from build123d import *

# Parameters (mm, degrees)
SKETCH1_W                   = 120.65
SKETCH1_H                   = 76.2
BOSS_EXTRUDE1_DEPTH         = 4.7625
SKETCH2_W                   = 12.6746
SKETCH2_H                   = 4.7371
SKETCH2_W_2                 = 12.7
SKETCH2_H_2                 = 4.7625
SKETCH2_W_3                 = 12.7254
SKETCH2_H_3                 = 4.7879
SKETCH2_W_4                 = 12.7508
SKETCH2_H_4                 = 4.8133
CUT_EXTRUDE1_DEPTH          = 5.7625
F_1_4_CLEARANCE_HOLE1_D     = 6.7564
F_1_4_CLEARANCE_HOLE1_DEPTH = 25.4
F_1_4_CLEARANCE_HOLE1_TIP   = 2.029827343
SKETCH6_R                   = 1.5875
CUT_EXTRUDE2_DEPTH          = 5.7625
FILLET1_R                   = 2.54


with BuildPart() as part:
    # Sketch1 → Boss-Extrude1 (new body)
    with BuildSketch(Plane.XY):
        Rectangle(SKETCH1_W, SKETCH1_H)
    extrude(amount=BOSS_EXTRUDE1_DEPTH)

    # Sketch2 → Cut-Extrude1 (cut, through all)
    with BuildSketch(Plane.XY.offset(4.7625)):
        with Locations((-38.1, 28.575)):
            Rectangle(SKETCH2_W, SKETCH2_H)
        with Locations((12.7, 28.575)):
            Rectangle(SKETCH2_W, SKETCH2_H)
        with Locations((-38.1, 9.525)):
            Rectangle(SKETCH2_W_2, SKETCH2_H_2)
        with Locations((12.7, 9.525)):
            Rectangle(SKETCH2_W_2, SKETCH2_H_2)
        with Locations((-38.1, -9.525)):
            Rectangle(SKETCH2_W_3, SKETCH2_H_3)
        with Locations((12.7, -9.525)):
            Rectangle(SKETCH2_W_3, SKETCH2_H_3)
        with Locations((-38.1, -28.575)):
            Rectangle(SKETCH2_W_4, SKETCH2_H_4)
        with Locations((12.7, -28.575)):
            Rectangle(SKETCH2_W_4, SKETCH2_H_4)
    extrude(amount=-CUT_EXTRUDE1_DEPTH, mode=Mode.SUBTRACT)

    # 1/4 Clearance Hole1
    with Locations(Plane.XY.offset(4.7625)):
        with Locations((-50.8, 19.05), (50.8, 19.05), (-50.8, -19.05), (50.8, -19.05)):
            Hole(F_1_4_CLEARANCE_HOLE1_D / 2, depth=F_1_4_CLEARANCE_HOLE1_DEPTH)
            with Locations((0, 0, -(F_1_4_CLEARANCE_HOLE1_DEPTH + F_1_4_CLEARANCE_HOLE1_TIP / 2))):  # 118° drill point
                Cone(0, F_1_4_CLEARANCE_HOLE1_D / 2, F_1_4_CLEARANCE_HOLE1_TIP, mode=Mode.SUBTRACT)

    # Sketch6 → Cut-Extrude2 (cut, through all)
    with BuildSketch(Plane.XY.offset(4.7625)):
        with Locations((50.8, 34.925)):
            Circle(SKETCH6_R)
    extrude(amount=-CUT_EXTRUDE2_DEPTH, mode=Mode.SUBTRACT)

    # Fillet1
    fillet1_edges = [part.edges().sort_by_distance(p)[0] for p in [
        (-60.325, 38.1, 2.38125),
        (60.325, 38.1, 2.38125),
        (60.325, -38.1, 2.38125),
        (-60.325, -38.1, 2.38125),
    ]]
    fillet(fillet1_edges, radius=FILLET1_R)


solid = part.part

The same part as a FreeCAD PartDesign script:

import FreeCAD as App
import Part
import Sketcher

V = App.Vector
Q = App.Units.Quantity


def edges_at(feature, points):
    """Names of the edges that pass closest to the given points."""
    edges = feature.Shape.Edges
    near = lambda p: min(range(len(edges)), key=lambda i: edges[i].distToShape(Part.Vertex(*p))[0])
    return sorted({f"Edge{near(p) + 1}" for p in points})


def add_polygon(sketch, points):
    """Adds a closed chain of lines whose ends are joined by coincident constraints."""
    first, n = sketch.GeometryCount, len(points)
    for a, b in zip(points, points[1:] + points[:1]):
        sketch.addGeometry(Part.LineSegment(App.Vector(*a, 0), App.Vector(*b, 0)), False)
    for i in range(n):
        sketch.addConstraint(Sketcher.Constraint("Coincident", first + i, 2, first + (i + 1) % n, 1))

doc = App.newDocument("Part")
body = doc.addObject("PartDesign::Body", "Body")

# Sketch on XY plane
sketch1 = body.newObject("Sketcher::SketchObject", "Sketch")
sketch1.AttachmentSupport = (doc.getObject("XY_Plane"), [""])
sketch1.MapMode = "FlatFace"
add_polygon(sketch1, [(-60.325, 38.1), (-60.325, -38.1), (60.325, -38.1), (60.325, 38.1)])  # lines 0-3
sketch1.addConstraint([
    Sketcher.Constraint("Vertical", 0),
    Sketcher.Constraint("Horizontal", 1),
    Sketcher.Constraint("Vertical", 2),
    Sketcher.Constraint("Horizontal", 3),
    Sketcher.Constraint("Symmetric", 0, 2, 2, 2, -1, 1),
    Sketcher.Constraint("DistanceY", 0, 2, 0, 1, Q("3 in")),
    Sketcher.Constraint("DistanceX", 1, 1, 1, 2, Q("4.75 in")),
])
pad1 = body.newObject("PartDesign::Pad", "Pad")
pad1.Profile = sketch1
pad1.Length = Q("0.1875 in")

# Sketch on XY plane
sketch2 = body.newObject("Sketcher::SketchObject", "Sketch001")
sketch2.AttachmentSupport = (doc.getObject("XY_Plane"), [""])
sketch2.MapMode = "FlatFace"
sketch2.AttachmentOffset = App.Placement(V(0, 0, 0.1875 * 25.4), App.Rotation())
add_polygon(sketch2, [(-44.4373, 30.94355), (-44.4373, 26.20645), (-31.7627, 26.20645), (-31.7627, 30.94355)])  # lines 0-3
add_polygon(sketch2, [(6.3627, 30.94355), (6.3627, 26.20645), (19.0373, 26.20645), (19.0373, 30.94355)])  # lines 4-7
add_polygon(sketch2, [(-44.45, 11.90625), (-44.45, 7.14375), (-31.75, 7.14375), (-31.75, 11.90625)])  # lines 8-11
add_polygon(sketch2, [(6.35, 11.90625), (6.35, 7.14375), (19.05, 7.14375), (19.05, 11.90625)])  # lines 12-15
add_polygon(sketch2, [(-44.4627, -7.13105), (-44.4627, -11.91895), (-31.7373, -11.91895), (-31.7373, -7.13105)])  # lines 16-19
add_polygon(sketch2, [(6.3373, -7.13105), (6.3373, -11.91895), (19.0627, -11.91895), (19.0627, -7.13105)])  # lines 20-23
add_polygon(sketch2, [(-44.4754, -26.16835), (-44.4754, -30.98165), (-31.7246, -30.98165), (-31.7246, -26.16835)])  # lines 24-27
add_polygon(sketch2, [(6.3246, -26.16835), (6.3246, -30.98165), (19.0754, -30.98165), (19.0754, -26.16835)])  # lines 28-31
sketch2.addConstraint([
    Sketcher.Constraint("Vertical", 0),
    Sketcher.Constraint("Horizontal", 1),
    Sketcher.Constraint("Vertical", 2),
    Sketcher.Constraint("Horizontal", 3),
    Sketcher.Constraint("Vertical", 4),
    Sketcher.Constraint("Horizontal", 5),
    Sketcher.Constraint("Vertical", 6),
    Sketcher.Constraint("Horizontal", 7),
    Sketcher.Constraint("Vertical", 8),
    Sketcher.Constraint("Horizontal", 9),
    Sketcher.Constraint("Vertical", 10),
    Sketcher.Constraint("Horizontal", 11),
    Sketcher.Constraint("Vertical", 12),
    Sketcher.Constraint("Horizontal", 13),
    Sketcher.Constraint("Vertical", 14),
    Sketcher.Constraint("Horizontal", 15),
    Sketcher.Constraint("Vertical", 16),
    Sketcher.Constraint("Horizontal", 17),
    Sketcher.Constraint("Vertical", 18),
    Sketcher.Constraint("Horizontal", 19),
    Sketcher.Constraint("Vertical", 20),
    Sketcher.Constraint("Horizontal", 21),
    Sketcher.Constraint("Vertical", 22),
    Sketcher.Constraint("Horizontal", 23),
    Sketcher.Constraint("Vertical", 24),
    Sketcher.Constraint("Horizontal", 25),
    Sketcher.Constraint("Vertical", 26),
    Sketcher.Constraint("Horizontal", 27),
    Sketcher.Constraint("Vertical", 28),
    Sketcher.Constraint("Horizontal", 29),
    Sketcher.Constraint("Vertical", 30),
    Sketcher.Constraint("Horizontal", 31),
    Sketcher.Constraint("Horizontal", 1, 2, 4, 2),
    Sketcher.Constraint("Horizontal", 3, 2, 6, 2),
    Sketcher.Constraint("Horizontal", 9, 2, 12, 2),
    Sketcher.Constraint("Horizontal", 11, 2, 14, 2),
    Sketcher.Constraint("Horizontal", 17, 2, 20, 2),
    Sketcher.Constraint("Horizontal", 19, 2, 22, 2),
    Sketcher.Constraint("Horizontal", 25, 2, 28, 2),
    Sketcher.Constraint("Horizontal", 27, 2, 30, 2),
    Sketcher.Constraint("Equal", 3, 5),
    Sketcher.Constraint("Equal", 11, 13),
    Sketcher.Constraint("Equal", 19, 21),
    Sketcher.Constraint("Equal", 27, 29),
    Sketcher.Constraint("DistanceX", 9, 1, 9, 2, Q("0.5 in")),
    Sketcher.Constraint("DistanceX", 0, 2, 4, 2, Q("2 in")),
    Sketcher.Constraint("DistanceX", 9, 2, 12, 2, Q("1.5 in")),
    Sketcher.Constraint("DistanceX", 1, 1, 1, 2, Q("0.499 in")),
    Sketcher.Constraint("DistanceX", 17, 1, 17, 2, Q("0.501 in")),
    Sketcher.Constraint("DistanceX", 25, 1, 25, 2, Q("0.502 in")),
    Sketcher.Constraint("DistanceY", 8, 2, 8, 1, Q("0.1875 in")),
    Sketcher.Constraint("DistanceX", 8, 2, -1, 1, Q("1.75 in")),
    Sketcher.Constraint("DistanceY", 0, 2, 0, 1, Q("0.1865 in")),
    Sketcher.Constraint("DistanceY", 16, 2, 16, 1, Q("0.1885 in")),
    Sketcher.Constraint("DistanceY", 24, 2, 24, 1, Q("0.1895 in")),
    Sketcher.Constraint("DistanceY", -1, 1, 8, 2, Q("0.28125 in")),
    Sketcher.Constraint("DistanceX", 24, 2, -1, 1, Q("1.751 in")),
    Sketcher.Constraint("DistanceX", -1, 1, 28, 2, Q("0.249 in")),
    Sketcher.Constraint("DistanceY", 8, 2, 3, 2, Q("0.937 in")),
    Sketcher.Constraint("DistanceY", 16, 2, 11, 2, Q("0.938 in")),
    Sketcher.Constraint("DistanceX", 16, 2, 0, 2, Q("0.001 in")),
    Sketcher.Constraint("DistanceX", 17, 2, 20, 2, Q("1.499 in")),
    Sketcher.Constraint("DistanceY", 24, 2, 19, 2, Q("0.939 in")),
    Sketcher.Constraint("DistanceX", 0, 2, -1, 1, Q("1.7495 in")),
])
pocket1 = body.newObject("PartDesign::Pocket", "Pocket")
pocket1.Profile = sketch2
pocket1.Type = "ThroughAll"

# Sketch on XY plane
sketch3 = body.newObject("Sketcher::SketchObject", "Sketch002")
sketch3.AttachmentSupport = (doc.getObject("XY_Plane"), [""])
sketch3.MapMode = "FlatFace"
sketch3.AttachmentOffset = App.Placement(V(0, 0, 0.1875 * 25.4), App.Rotation())
sketch3.addGeometry([
    Part.Circle(V(-50.8, 19.05, 0), V(0, 0, 1), 3.3782),
    Part.Circle(V(50.8, 19.05, 0), V(0, 0, 1), 3.3782),
    Part.Circle(V(-50.8, -19.05, 0), V(0, 0, 1), 3.3782),
    Part.Circle(V(50.8, -19.05, 0), V(0, 0, 1), 3.3782),
], False)
sketch3.addConstraint([
    Sketcher.Constraint("Equal", 0, 1),
    Sketcher.Constraint("Equal", 1, 2),
    Sketcher.Constraint("Equal", 2, 3),
    Sketcher.Constraint("Symmetric", 1, 3, 2, 3, -1, 1),
    Sketcher.Constraint("Symmetric", 0, 3, 3, 3, -1, 1),
    Sketcher.Constraint("Symmetric", 0, 3, 1, 3, -2),
    Sketcher.Constraint("Diameter", 0, Q("0.266 in")),
    Sketcher.Constraint("DistanceX", 0, 3, -1, 1, Q("2 in")),
    Sketcher.Constraint("DistanceY", 2, 3, 0, 3, Q("1.5 in")),
])
doc.recompute()
hole = body.newObject("PartDesign::Hole", "Hole")
hole.Profile = sketch3
hole.ThreadType = "None"
hole.Diameter = Q("0.266 in")
hole.DepthType = "Dimension"
hole.Depth = Q("1 in")
hole.DrillPoint = "Angled"
hole.DrillPointAngle = 118

# Sketch on XY plane
sketch4 = body.newObject("Sketcher::SketchObject", "Sketch003")
sketch4.AttachmentSupport = (doc.getObject("XY_Plane"), [""])
sketch4.MapMode = "FlatFace"
sketch4.AttachmentOffset = App.Placement(V(0, 0, 0.1875 * 25.4), App.Rotation())
sketch4.addGeometry(Part.Circle(V(50.8, 34.925, 0), V(0, 0, 1), 1.5875), False)
sketch4.addConstraint([
    Sketcher.Constraint("Diameter", 0, Q("0.125 in")),
    Sketcher.Constraint("DistanceX", -1, 1, 0, 3, Q("2 in")),
    Sketcher.Constraint("DistanceY", -1, 1, 0, 3, Q("1.375 in")),
])
pocket2 = body.newObject("PartDesign::Pocket", "Pocket001")
pocket2.Profile = sketch4
pocket2.Type = "ThroughAll"
doc.recompute()

fillet = body.newObject("PartDesign::Fillet", "Fillet")
fillet.Base = (pocket2, edges_at(pocket2, [
    (-60.325, 38.1, 2.381),
    (60.325, 38.1, 2.381),
    (60.325, -38.1, 2.381),
    (-60.325, -38.1, 2.381),
]))
fillet.Radius = Q("0.1 in")

doc.recompute()
